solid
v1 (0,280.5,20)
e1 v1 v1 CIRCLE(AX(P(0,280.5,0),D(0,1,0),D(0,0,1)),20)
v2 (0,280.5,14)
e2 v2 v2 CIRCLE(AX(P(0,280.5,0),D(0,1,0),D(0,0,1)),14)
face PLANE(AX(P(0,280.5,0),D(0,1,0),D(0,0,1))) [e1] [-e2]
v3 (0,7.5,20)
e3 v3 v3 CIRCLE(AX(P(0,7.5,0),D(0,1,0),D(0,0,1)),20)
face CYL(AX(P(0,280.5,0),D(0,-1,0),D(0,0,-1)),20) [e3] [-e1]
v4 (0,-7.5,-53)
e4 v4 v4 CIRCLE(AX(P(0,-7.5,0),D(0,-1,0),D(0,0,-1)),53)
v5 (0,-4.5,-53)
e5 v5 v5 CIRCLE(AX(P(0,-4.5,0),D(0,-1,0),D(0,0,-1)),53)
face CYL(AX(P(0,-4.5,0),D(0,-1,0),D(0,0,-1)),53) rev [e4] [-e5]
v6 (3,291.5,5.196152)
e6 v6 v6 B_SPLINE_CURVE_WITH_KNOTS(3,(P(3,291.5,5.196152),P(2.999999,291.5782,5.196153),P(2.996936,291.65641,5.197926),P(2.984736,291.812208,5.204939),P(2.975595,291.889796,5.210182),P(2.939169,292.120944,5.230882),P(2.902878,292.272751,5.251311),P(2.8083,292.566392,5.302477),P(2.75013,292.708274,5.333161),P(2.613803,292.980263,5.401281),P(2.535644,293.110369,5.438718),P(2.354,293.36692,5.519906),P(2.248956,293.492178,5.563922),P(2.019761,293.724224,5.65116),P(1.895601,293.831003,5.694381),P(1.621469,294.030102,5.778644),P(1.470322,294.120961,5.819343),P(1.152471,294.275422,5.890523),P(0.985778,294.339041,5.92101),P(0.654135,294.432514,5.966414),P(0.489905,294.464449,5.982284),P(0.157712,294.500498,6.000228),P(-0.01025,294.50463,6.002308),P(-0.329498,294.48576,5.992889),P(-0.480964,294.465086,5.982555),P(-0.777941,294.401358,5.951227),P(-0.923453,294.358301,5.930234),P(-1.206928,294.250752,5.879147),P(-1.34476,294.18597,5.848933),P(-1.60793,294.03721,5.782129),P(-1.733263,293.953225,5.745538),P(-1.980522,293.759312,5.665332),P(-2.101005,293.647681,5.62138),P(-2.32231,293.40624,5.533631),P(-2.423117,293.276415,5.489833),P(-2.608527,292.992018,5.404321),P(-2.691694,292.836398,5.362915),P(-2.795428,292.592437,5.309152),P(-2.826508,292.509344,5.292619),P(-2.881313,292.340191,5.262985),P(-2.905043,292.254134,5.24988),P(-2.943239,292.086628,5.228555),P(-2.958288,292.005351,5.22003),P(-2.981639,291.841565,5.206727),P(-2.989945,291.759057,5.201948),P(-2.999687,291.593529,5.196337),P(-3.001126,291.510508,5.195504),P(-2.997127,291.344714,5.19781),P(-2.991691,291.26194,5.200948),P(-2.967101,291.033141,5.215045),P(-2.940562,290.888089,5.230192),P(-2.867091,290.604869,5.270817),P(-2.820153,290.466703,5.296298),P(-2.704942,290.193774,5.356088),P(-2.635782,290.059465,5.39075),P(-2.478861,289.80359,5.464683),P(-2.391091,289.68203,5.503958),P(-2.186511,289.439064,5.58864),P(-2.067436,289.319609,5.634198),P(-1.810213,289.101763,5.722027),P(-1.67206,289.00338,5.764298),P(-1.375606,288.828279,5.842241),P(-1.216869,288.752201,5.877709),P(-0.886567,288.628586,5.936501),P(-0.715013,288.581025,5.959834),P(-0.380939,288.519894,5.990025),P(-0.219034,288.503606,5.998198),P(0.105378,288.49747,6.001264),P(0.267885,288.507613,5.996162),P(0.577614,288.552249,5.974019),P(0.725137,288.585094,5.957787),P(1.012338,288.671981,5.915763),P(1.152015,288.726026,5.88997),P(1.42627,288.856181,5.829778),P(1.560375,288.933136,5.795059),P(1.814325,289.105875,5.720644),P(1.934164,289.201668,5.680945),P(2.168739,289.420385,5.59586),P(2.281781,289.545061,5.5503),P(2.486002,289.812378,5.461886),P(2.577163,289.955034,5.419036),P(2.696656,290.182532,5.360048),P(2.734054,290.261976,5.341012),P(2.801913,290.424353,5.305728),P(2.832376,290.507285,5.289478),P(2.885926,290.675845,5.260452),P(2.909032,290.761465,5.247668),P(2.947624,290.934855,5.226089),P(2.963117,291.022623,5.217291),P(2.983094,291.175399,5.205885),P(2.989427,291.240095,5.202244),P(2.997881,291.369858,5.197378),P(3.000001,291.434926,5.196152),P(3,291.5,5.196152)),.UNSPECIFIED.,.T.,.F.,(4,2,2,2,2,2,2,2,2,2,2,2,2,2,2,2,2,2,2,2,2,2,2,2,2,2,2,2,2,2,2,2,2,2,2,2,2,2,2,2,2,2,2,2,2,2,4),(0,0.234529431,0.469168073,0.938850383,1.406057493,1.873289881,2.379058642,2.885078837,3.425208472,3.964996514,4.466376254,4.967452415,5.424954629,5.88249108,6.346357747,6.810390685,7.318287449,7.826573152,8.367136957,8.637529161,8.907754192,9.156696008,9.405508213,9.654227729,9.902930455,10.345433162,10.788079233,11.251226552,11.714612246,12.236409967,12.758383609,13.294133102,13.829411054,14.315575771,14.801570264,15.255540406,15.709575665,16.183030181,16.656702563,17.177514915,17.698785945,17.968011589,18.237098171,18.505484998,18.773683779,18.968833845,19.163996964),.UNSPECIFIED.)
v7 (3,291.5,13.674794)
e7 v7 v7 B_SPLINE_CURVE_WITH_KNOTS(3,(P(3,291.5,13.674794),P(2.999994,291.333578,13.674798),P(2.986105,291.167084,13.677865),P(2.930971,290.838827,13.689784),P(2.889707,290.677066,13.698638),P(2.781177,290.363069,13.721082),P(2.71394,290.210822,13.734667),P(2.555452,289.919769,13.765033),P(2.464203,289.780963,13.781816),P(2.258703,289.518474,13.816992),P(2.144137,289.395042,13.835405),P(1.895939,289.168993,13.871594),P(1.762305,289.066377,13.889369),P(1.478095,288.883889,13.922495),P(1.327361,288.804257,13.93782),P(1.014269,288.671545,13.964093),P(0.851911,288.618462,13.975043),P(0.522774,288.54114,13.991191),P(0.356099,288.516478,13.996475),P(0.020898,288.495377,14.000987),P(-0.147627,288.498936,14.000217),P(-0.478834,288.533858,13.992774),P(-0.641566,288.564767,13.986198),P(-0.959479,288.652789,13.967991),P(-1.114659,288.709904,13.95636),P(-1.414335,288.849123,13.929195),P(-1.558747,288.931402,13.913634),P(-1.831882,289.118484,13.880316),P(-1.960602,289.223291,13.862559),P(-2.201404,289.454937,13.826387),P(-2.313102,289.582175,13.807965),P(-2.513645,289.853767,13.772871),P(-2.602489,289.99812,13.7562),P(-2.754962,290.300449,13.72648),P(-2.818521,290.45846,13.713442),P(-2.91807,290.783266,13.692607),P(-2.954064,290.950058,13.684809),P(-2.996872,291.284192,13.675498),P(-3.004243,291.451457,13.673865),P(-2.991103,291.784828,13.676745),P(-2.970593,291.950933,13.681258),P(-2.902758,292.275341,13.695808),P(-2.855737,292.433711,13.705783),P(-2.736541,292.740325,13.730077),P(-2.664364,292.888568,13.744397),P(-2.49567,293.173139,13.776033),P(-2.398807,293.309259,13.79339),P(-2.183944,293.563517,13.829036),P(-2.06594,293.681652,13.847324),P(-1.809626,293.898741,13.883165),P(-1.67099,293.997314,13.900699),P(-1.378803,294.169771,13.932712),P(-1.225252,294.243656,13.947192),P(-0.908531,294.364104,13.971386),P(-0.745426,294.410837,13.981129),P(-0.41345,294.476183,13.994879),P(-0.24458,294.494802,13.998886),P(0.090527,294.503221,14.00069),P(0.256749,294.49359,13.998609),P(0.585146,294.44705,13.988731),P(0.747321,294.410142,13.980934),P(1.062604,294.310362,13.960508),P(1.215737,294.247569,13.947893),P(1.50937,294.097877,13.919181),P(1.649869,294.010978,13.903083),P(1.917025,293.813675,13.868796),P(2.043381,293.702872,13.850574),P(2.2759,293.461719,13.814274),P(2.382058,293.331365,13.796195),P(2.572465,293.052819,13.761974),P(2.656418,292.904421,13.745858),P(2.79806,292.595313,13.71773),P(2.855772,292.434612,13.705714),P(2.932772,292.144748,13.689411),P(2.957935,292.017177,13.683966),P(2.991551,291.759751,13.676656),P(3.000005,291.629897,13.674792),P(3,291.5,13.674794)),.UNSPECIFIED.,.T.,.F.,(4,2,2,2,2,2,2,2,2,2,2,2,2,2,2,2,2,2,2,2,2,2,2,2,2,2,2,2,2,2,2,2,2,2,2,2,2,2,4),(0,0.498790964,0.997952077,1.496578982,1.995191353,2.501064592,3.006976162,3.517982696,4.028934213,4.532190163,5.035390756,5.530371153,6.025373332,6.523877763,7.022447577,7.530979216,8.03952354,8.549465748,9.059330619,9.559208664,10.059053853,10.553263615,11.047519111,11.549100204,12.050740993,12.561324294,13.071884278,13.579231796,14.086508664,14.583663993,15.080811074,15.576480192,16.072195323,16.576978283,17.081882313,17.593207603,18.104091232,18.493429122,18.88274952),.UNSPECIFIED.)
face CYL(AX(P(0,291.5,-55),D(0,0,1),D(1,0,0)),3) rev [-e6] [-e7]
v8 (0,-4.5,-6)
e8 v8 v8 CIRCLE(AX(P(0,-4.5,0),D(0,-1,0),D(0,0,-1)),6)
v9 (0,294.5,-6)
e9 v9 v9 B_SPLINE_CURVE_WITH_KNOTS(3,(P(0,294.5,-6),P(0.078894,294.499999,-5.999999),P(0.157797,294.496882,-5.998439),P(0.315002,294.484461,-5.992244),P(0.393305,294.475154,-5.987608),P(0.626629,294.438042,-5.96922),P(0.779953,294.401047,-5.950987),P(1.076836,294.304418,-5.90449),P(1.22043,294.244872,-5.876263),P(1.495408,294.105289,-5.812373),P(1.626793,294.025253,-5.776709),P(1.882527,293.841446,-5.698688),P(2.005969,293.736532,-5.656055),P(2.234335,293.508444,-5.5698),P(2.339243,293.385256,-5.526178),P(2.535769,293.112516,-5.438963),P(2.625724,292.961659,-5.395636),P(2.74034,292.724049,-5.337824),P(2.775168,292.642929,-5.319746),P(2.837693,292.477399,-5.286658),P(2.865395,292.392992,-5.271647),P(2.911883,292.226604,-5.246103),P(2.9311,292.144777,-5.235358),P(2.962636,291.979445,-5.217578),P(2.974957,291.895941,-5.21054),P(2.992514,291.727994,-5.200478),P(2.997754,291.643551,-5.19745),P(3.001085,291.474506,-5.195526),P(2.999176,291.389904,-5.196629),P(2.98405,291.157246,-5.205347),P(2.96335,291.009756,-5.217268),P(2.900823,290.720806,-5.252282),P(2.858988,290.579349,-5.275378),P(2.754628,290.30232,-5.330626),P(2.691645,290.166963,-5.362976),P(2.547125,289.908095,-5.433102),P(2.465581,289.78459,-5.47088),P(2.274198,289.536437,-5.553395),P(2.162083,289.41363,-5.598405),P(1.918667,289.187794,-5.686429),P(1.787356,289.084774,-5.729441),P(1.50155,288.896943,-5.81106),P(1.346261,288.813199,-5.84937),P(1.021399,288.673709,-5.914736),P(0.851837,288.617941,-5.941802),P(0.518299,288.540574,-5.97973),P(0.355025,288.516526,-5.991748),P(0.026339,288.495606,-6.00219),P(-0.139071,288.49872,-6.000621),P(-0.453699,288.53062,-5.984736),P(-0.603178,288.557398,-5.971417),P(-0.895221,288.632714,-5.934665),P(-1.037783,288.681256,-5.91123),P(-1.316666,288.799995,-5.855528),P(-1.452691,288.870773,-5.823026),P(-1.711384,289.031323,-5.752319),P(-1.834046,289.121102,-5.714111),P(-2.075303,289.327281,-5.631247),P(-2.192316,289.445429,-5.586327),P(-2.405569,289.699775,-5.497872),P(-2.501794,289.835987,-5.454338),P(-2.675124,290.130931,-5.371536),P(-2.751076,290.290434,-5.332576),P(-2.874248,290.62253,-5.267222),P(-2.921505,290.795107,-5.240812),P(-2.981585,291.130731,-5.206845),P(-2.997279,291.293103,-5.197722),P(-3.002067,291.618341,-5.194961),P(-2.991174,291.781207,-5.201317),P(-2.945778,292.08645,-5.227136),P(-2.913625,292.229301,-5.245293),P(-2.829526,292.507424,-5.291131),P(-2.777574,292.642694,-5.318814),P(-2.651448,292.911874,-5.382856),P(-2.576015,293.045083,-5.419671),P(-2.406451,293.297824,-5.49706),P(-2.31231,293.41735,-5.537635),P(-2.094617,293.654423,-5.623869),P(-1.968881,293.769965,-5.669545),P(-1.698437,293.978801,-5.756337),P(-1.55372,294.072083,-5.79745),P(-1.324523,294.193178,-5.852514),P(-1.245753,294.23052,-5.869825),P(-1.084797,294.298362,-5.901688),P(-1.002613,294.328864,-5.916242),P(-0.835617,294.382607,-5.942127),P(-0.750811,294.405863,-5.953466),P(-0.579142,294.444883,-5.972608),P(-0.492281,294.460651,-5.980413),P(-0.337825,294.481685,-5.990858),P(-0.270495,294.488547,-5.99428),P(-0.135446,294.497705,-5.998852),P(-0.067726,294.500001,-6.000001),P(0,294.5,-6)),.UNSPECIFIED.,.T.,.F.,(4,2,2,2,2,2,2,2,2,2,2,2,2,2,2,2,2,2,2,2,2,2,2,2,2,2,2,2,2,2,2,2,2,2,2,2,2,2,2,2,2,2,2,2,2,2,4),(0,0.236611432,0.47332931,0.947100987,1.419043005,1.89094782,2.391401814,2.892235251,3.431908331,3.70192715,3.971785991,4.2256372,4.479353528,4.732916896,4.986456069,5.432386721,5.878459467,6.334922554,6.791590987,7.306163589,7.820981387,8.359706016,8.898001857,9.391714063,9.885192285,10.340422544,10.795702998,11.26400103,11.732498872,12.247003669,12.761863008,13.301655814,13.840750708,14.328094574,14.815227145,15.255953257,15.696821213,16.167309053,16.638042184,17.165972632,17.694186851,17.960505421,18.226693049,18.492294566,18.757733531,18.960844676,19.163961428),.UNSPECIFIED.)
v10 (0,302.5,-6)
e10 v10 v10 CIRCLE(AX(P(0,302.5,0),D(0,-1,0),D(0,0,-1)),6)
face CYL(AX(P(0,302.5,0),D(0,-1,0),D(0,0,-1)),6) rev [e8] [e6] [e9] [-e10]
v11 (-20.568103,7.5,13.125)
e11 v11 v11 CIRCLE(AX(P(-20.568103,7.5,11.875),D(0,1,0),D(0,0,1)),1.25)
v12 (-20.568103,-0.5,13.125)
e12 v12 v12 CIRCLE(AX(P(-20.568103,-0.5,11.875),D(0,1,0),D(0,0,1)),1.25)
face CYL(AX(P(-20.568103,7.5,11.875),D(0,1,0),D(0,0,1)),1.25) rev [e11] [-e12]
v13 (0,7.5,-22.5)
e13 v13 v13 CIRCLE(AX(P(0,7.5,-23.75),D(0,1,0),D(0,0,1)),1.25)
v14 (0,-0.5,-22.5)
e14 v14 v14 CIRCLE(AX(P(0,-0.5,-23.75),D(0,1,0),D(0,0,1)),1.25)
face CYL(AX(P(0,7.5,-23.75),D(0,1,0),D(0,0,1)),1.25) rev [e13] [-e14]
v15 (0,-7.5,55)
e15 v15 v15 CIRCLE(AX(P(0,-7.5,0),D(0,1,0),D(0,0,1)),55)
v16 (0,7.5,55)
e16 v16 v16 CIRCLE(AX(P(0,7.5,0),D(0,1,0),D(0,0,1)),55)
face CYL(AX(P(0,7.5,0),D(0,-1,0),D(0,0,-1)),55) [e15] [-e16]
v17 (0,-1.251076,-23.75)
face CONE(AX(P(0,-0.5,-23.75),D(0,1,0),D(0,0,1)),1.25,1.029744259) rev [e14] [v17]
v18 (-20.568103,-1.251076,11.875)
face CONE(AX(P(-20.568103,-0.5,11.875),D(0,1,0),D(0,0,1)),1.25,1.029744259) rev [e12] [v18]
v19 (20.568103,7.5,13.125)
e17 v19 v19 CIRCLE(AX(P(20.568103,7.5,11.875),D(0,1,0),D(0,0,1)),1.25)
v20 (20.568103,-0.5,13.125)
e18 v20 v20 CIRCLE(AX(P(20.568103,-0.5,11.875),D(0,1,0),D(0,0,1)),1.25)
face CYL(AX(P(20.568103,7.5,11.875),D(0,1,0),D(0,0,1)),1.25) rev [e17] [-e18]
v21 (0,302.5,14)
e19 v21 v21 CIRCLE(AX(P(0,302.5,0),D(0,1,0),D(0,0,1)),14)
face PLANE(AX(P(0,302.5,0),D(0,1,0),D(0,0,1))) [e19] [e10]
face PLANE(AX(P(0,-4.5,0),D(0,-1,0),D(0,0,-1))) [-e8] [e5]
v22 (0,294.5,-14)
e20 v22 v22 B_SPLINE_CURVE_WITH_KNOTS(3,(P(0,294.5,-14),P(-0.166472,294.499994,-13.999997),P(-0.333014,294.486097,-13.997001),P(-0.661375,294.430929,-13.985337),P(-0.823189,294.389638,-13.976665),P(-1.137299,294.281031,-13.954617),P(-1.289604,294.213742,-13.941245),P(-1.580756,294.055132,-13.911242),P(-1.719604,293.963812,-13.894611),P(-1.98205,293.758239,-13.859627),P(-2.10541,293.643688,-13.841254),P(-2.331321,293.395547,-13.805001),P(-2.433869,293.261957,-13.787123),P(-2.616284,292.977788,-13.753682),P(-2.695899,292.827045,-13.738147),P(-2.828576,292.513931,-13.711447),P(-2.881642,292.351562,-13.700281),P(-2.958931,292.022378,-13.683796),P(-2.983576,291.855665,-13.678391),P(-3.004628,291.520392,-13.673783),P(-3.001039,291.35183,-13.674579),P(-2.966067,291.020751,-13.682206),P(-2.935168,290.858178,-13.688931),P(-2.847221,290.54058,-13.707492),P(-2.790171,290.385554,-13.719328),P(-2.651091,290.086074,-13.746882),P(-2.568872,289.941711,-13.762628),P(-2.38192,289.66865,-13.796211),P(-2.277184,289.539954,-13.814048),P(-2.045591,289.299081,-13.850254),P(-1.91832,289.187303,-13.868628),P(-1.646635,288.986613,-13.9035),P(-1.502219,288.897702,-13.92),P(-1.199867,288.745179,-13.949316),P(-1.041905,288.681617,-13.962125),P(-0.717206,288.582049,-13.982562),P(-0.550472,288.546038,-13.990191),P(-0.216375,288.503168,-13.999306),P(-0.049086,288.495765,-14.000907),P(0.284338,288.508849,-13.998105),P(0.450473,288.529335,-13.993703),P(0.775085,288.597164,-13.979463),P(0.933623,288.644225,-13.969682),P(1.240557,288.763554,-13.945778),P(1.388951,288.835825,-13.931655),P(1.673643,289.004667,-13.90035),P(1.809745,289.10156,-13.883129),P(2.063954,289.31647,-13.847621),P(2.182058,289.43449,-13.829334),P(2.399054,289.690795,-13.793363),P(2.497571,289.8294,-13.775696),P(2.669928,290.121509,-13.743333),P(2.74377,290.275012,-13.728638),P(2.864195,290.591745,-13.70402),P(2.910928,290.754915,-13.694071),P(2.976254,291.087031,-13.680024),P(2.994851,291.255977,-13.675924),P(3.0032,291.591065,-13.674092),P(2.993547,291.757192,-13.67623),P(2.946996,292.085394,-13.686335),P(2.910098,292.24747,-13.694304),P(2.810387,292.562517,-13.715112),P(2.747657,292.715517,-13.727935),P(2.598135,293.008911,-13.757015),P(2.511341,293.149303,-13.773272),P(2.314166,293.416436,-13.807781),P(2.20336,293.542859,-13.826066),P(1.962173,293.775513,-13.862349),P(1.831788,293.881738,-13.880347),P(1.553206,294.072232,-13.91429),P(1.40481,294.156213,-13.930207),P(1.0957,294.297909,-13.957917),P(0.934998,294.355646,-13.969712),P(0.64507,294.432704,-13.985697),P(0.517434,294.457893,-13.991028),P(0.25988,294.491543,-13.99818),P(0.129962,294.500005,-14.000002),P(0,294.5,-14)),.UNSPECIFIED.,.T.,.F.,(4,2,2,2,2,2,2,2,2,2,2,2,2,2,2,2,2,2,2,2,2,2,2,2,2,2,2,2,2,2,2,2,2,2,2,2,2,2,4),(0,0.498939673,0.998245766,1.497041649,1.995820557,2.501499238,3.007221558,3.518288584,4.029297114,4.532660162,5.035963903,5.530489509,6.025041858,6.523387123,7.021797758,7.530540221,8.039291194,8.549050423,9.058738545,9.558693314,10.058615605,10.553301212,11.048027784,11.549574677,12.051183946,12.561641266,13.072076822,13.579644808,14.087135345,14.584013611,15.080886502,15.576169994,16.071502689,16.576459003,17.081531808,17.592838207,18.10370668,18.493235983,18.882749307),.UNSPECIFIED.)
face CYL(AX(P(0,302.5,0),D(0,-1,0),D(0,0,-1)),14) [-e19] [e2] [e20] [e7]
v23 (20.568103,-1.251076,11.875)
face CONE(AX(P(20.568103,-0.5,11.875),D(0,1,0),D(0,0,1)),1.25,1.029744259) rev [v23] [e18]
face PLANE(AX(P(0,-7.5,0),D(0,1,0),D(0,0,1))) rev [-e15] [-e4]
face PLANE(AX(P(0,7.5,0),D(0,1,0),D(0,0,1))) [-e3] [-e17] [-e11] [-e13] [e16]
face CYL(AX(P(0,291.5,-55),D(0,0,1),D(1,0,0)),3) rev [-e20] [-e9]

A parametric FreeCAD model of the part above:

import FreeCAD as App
import Part
import Sketcher

V = App.Vector

doc = App.newDocument("Part")
params = doc.addObject("Spreadsheet::Sheet", "Params")
for row, (alias, value) in enumerate([
    ("sketch1_diameter", "110 mm"),
    ("pad1_length", "15 mm"),
    ("sketch2_diameter", "40 mm"),
    ("pad2_length", "273 mm"),
    ("sketch3_diameter", "28 mm"),
    ("pad3_length", "22 mm"),
    ("sketch4_diameter", "106 mm"),
    ("pocket1_length", "3 mm"),
    ("sketch5_diameter", "12 mm"),
    ("sketch6_diameter", "6 mm"),
    ("sketch7_diameter", "2.5 mm"),
    ("hole_diameter", "2.5 mm"),
    ("hole_depth", "8 mm"),
], start=1):
    params.set(f"A{row}", alias)
    params.set(f"B{row}", "=" + value)
    params.setAlias(f"B{row}", alias)

body = doc.addObject("PartDesign::Body", "Body")

# Sketch on XZ plane
sketch1 = doc.addObject("Sketcher::SketchObject", "Sketch")
body.addObject(sketch1)
sketch1.AttachmentSupport = (doc.XZ_Plane, [""])
sketch1.MapMode = "FlatFace"
sketch1.addGeometry(Part.Circle(V(0, 0, 0), V(0, 0, 1), 55), False)
sketch1.addConstraint(Sketcher.Constraint("Coincident", 0, 3, -1, 1))
sketch1.addConstraint(Sketcher.Constraint("Diameter", 0, 110.0))
sketch1.setExpression("Constraints[1]", "Params.sketch1_diameter")
pad1 = doc.addObject("PartDesign::Pad", "Pad")
body.addObject(pad1)
pad1.Profile = sketch1
pad1.setExpression("Length", "Params.pad1_length")
pad1.Midplane = True

# Sketch on XZ plane
sketch2 = doc.addObject("Sketcher::SketchObject", "Sketch001")
body.addObject(sketch2)
sketch2.AttachmentSupport = (doc.XZ_Plane, [""])
sketch2.MapMode = "FlatFace"
sketch2.AttachmentOffset = App.Placement(V(0, 0, -7.5), App.Rotation())
sketch2.addGeometry(Part.Circle(V(0, 0, 0), V(0, 0, 1), 20), False)
sketch2.addConstraint(Sketcher.Constraint("Coincident", 0, 3, -1, 1))
sketch2.addConstraint(Sketcher.Constraint("Diameter", 0, 40.0))
sketch2.setExpression("Constraints[1]", "Params.sketch2_diameter")
pad2 = doc.addObject("PartDesign::Pad", "Pad001")
body.addObject(pad2)
pad2.Profile = sketch2
pad2.setExpression("Length", "Params.pad2_length")
pad2.Reversed = True

# Sketch on XZ plane
sketch3 = doc.addObject("Sketcher::SketchObject", "Sketch002")
body.addObject(sketch3)
sketch3.AttachmentSupport = (doc.XZ_Plane, [""])
sketch3.MapMode = "FlatFace"
sketch3.AttachmentOffset = App.Placement(V(0, 0, -280.5), App.Rotation())
sketch3.addGeometry(Part.Circle(V(0, 0, 0), V(0, 0, 1), 14), False)
sketch3.addConstraint(Sketcher.Constraint("Coincident", 0, 3, -1, 1))
sketch3.addConstraint(Sketcher.Constraint("Diameter", 0, 28.0))
sketch3.setExpression("Constraints[1]", "Params.sketch3_diameter")
pad3 = doc.addObject("PartDesign::Pad", "Pad002")
body.addObject(pad3)
pad3.Profile = sketch3
pad3.setExpression("Length", "Params.pad3_length")
pad3.Reversed = True

# Sketch on XZ plane
sketch4 = doc.addObject("Sketcher::SketchObject", "Sketch003")
body.addObject(sketch4)
sketch4.AttachmentSupport = (doc.XZ_Plane, [""])
sketch4.MapMode = "FlatFace"
sketch4.AttachmentOffset = App.Placement(V(0, 0, 7.5), App.Rotation())
sketch4.addGeometry(Part.Circle(V(0, 0, 0), V(0, 0, 1), 53), False)
sketch4.addConstraint(Sketcher.Constraint("Coincident", 0, 3, -1, 1))
sketch4.addConstraint(Sketcher.Constraint("Diameter", 0, 106.0))
sketch4.setExpression("Constraints[1]", "Params.sketch4_diameter")
pocket1 = doc.addObject("PartDesign::Pocket", "Pocket")
body.addObject(pocket1)
pocket1.Profile = sketch4
pocket1.setExpression("Length", "Params.pocket1_length")

# Sketch on XZ plane
sketch5 = doc.addObject("Sketcher::SketchObject", "Sketch004")
body.addObject(sketch5)
sketch5.AttachmentSupport = (doc.XZ_Plane, [""])
sketch5.MapMode = "FlatFace"
sketch5.AttachmentOffset = App.Placement(V(0, 0, 4.5), App.Rotation())
sketch5.addGeometry(Part.Circle(V(0, 0, 0), V(0, 0, 1), 6), False)
sketch5.addConstraint(Sketcher.Constraint("Coincident", 0, 3, -1, 1))
sketch5.addConstraint(Sketcher.Constraint("Diameter", 0, 12.0))
sketch5.setExpression("Constraints[1]", "Params.sketch5_diameter")
pocket2 = doc.addObject("PartDesign::Pocket", "Pocket001")
body.addObject(pocket2)
pocket2.Profile = sketch5
pocket2.Type = "ThroughAll"

# Sketch on XY plane
sketch6 = doc.addObject("Sketcher::SketchObject", "Sketch005")
body.addObject(sketch6)
sketch6.AttachmentSupport = (doc.XY_Plane, [""])
sketch6.MapMode = "FlatFace"
sketch6.addGeometry(Part.Circle(V(0, 291.5, 0), V(0, 0, 1), 3), False)
sketch6.addConstraint(Sketcher.Constraint("PointOnObject", 0, 3, -2))
sketch6.addConstraint(Sketcher.Constraint("Diameter", 0, 6.0))
sketch6.addConstraint(Sketcher.Constraint("DistanceY", -1, 1, 0, 3, 291.5))
sketch6.setExpression("Constraints[1]", "Params.sketch6_diameter")
pocket3 = doc.addObject("PartDesign::Pocket", "Pocket002")
body.addObject(pocket3)
pocket3.Profile = sketch6
pocket3.Type = "ThroughAll"
pocket3.Midplane = True

# Sketch on XZ plane
sketch7 = doc.addObject("Sketcher::SketchObject", "Sketch006")
body.addObject(sketch7)
sketch7.AttachmentSupport = (doc.XZ_Plane, [""])
sketch7.MapMode = "FlatFace"
sketch7.AttachmentOffset = App.Placement(V(0, 0, -7.5), App.Rotation())
sketch7.addGeometry(Part.Circle(V(-20.6, 11.9, 0), V(0, 0, 1), 1.2), False)
sketch7.addGeometry(Part.Circle(V(20.6, 11.9, 0), V(0, 0, 1), 1.2), False)
sketch7.addGeometry(Part.Circle(V(0, -23.8, 0), V(0, 0, 1), 1.2), False)
sketch7.addConstraint(Sketcher.Constraint("Equal", 0, 1))
sketch7.addConstraint(Sketcher.Constraint("Equal", 1, 2))
sketch7.addConstraint(Sketcher.Constraint("Symmetric", 0, 3, 1, 3, -2))
sketch7.addConstraint(Sketcher.Constraint("PointOnObject", 2, 3, -2))
sketch7.addConstraint(Sketcher.Constraint("Diameter", 0, 2.5))
sketch7.addConstraint(Sketcher.Constraint("DistanceY", 2, 3, -1, 1, 23.75))
sketch7.addConstraint(Sketcher.Constraint("DistanceY", -1, 1, 0, 3, 11.875))
sketch7.addConstraint(Sketcher.Constraint("DistanceX", 0, 3, -1, 1, 20.568103))
sketch7.setExpression("Constraints[4]", "Params.sketch7_diameter")
doc.recompute()
hole = doc.addObject("PartDesign::Hole", "Hole")
body.addObject(hole)
hole.Profile = sketch7
hole.ThreadType = "None"
hole.setExpression("Diameter", "Params.hole_diameter")
hole.DepthType = "Dimension"
hole.setExpression("Depth", "Params.hole_depth")
hole.DrillPoint = "Angled"
hole.DrillPointAngle = 118
hole.Reversed = True

doc.recompute()
